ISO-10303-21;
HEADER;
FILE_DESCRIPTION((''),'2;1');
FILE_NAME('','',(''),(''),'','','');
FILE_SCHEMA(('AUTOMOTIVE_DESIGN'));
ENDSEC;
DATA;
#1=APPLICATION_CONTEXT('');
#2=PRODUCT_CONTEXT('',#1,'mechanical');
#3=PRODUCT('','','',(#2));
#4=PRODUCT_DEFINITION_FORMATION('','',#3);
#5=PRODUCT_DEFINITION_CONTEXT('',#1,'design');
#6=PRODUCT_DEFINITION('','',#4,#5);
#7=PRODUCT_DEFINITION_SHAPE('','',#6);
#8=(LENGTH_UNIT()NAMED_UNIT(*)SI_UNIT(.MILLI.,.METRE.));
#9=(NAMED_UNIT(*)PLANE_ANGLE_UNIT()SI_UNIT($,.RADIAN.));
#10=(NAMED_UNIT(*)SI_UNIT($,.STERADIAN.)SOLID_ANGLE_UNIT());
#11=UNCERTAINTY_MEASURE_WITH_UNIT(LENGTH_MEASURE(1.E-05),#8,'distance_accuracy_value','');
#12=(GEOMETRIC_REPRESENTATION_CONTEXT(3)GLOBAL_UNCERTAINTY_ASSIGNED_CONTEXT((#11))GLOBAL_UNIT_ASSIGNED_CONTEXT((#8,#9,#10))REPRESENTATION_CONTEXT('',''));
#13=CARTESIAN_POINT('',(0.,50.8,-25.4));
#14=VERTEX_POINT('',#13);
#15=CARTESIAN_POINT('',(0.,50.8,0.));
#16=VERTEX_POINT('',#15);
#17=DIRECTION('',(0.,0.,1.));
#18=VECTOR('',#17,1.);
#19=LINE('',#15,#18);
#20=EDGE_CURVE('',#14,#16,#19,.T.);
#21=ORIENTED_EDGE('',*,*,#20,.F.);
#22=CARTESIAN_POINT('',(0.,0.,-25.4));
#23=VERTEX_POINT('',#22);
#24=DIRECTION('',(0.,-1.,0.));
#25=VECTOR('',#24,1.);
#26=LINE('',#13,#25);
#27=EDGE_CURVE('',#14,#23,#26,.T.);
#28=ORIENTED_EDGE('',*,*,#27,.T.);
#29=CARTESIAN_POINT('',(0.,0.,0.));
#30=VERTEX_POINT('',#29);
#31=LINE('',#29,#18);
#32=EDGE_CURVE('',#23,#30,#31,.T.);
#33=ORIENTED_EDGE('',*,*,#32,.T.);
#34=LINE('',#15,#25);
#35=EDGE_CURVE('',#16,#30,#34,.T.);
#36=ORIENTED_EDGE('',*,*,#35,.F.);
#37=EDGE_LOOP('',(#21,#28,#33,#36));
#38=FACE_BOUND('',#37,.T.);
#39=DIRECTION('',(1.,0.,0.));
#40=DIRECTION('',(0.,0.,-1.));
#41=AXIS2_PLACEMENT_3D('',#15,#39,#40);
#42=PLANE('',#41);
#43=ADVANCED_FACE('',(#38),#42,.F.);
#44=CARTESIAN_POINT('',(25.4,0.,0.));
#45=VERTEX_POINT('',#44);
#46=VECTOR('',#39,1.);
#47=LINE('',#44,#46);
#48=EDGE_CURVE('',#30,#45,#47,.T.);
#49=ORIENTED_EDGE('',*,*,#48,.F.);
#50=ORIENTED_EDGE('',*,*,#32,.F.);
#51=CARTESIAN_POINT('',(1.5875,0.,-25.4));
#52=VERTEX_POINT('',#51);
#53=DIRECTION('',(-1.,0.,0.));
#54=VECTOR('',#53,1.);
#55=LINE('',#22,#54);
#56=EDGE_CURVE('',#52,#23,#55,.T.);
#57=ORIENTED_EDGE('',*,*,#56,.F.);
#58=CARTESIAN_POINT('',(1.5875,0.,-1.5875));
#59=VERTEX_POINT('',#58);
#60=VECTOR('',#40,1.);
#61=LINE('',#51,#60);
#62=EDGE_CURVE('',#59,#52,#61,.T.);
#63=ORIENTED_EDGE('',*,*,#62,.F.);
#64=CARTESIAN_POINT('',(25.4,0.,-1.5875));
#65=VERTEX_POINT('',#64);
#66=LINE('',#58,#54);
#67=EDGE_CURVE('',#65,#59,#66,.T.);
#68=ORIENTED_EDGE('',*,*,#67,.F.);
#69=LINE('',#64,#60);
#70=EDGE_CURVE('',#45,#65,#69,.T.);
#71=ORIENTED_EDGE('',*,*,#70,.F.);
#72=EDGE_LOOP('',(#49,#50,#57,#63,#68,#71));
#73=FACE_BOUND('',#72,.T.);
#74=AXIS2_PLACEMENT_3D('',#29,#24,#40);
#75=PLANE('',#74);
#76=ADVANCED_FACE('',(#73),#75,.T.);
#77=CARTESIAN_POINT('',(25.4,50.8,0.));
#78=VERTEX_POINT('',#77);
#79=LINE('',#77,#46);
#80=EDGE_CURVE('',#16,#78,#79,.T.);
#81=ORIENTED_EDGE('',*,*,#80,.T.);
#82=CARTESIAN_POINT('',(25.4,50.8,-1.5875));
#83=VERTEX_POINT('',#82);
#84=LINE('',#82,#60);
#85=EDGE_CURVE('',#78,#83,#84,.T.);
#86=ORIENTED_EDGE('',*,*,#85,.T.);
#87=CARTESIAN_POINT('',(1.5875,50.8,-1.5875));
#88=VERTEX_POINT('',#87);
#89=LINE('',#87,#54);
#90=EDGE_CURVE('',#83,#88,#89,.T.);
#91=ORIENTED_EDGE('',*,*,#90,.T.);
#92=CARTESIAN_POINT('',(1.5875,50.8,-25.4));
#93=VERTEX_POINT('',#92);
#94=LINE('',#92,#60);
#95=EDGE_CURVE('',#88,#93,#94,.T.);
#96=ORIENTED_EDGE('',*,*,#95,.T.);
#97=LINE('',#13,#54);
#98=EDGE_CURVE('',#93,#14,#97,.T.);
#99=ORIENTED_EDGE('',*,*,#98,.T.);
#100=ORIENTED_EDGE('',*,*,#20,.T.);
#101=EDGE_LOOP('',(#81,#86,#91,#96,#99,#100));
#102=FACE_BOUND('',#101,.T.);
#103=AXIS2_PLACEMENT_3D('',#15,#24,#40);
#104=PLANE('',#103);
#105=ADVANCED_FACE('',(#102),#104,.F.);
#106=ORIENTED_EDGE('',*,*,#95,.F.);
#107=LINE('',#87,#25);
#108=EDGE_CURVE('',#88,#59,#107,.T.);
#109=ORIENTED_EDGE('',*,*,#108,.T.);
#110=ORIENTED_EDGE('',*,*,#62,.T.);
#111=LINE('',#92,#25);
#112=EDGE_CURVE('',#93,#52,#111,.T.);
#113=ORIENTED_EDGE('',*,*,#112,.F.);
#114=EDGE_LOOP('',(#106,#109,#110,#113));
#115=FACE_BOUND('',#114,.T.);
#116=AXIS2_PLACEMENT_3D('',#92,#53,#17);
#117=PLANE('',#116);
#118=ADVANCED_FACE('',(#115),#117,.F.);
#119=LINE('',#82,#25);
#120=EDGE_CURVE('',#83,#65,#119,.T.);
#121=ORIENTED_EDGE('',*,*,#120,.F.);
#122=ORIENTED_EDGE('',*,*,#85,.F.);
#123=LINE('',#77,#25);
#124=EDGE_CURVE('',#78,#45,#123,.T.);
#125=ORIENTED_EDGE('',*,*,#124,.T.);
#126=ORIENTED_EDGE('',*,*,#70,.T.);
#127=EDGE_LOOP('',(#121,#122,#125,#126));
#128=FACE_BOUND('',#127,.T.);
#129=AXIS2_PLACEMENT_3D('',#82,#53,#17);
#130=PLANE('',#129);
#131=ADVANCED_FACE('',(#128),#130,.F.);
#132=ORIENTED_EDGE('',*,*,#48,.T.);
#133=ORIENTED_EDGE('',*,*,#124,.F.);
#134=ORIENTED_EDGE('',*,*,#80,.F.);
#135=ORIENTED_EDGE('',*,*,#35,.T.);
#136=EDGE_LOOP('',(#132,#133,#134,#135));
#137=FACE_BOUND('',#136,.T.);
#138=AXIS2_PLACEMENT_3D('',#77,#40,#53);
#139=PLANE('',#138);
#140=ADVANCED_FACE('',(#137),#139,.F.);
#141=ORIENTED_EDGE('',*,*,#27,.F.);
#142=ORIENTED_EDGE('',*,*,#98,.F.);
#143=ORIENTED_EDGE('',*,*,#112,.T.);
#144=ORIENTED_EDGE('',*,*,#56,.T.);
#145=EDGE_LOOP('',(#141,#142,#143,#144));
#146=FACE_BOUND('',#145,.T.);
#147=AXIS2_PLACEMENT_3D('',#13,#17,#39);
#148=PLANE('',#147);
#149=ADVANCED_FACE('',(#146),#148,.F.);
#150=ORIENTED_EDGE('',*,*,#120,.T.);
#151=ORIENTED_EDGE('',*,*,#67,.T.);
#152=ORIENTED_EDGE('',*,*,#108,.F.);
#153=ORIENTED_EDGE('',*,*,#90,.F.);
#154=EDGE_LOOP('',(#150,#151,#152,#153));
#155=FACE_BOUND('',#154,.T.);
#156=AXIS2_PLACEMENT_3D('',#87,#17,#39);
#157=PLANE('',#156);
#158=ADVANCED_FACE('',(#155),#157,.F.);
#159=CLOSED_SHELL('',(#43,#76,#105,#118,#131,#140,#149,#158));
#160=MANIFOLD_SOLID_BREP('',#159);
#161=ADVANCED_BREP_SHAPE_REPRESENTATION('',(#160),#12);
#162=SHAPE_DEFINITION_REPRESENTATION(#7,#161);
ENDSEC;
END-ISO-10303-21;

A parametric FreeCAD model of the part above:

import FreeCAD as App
import Part
import Sketcher
Q = App.Units.Quantity

doc = App.newDocument("Part")
params = doc.addObject("Spreadsheet::Sheet", "Params")
for row, (alias, value) in enumerate([
    ("sketch1_width", "1 in"),
    ("sketch1_width2", "0.9375 in"),
    ("pad1_length", "2 in"),
], start=1):
    params.set(f"A{row}", alias)
    params.set(f"B{row}", "=" + value)
    params.setAlias(f"B{row}", alias)

body = doc.addObject("PartDesign::Body", "Body")

# Sketch on XZ plane
sketch1 = doc.addObject("Sketcher::SketchObject", "Sketch")
body.addObject(sketch1)
sketch1.AttachmentSupport = (doc.XZ_Plane, [""])
sketch1.MapMode = "FlatFace"
sketch1.addGeometry([
    Part.LineSegment(App.Vector(0, -25.4, 0), App.Vector(0, 0, 0)),  # 0
    Part.LineSegment(App.Vector(0, 0, 0), App.Vector(25.4, 0, 0)),  # 1
    Part.LineSegment(App.Vector(25.4, 0, 0), App.Vector(25.4, -1.6, 0)),  # 2
    Part.LineSegment(App.Vector(25.4, -1.6, 0), App.Vector(1.6, -1.6, 0)),  # 3
    Part.LineSegment(App.Vector(1.6, -1.6, 0), App.Vector(1.6, -25.4, 0)),  # 4
    Part.LineSegment(App.Vector(1.6, -25.4, 0), App.Vector(0, -25.4, 0)),  # 5
], False)
sketch1.addConstraint([
    Sketcher.Constraint("Coincident", 0, 2, 1, 1),
    Sketcher.Constraint("Coincident", 1, 2, 2, 1),
    Sketcher.Constraint("Coincident", 2, 2, 3, 1),
    Sketcher.Constraint("Coincident", 3, 2, 4, 1),
    Sketcher.Constraint("Coincident", 4, 2, 5, 1),
    Sketcher.Constraint("Coincident", 5, 2, 0, 1),
    Sketcher.Constraint("Vertical", 0),
    Sketcher.Constraint("Horizontal", 1),
    Sketcher.Constraint("Vertical", 2),
    Sketcher.Constraint("Horizontal", 3),
    Sketcher.Constraint("Vertical", 4),
    Sketcher.Constraint("Horizontal", 5),
    Sketcher.Constraint("Coincident", 0, 2, -1, 1),
    Sketcher.Constraint("Equal", 1, 0),
    Sketcher.Constraint("Equal", 5, 2),
    Sketcher.Constraint("DistanceX", 1, 1, 1, 2, Q("1 in")),
    Sketcher.Constraint("DistanceX", 3, 2, 3, 1, Q("0.9375 in")),
])
sketch1.setExpression("Constraints[15]", "Params.sketch1_width")
sketch1.setExpression("Constraints[16]", "Params.sketch1_width2")
pad1 = doc.addObject("PartDesign::Pad", "Pad")
body.addObject(pad1)
pad1.Profile = sketch1
pad1.setExpression("Length", "Params.pad1_length")
pad1.Reversed = True

doc.recompute()
